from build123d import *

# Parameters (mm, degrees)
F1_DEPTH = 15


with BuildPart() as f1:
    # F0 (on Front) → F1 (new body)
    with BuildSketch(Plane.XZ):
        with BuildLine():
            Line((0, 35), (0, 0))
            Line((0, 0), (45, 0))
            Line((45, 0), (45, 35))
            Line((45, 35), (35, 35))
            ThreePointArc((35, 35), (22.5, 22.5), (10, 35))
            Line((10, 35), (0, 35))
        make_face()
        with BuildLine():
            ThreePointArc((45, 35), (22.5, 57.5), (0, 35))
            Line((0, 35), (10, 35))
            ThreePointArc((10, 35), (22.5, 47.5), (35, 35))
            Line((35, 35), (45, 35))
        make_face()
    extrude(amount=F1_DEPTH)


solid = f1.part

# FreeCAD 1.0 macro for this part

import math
import FreeCAD as App
import Part
import Sketcher

V = App.Vector

doc = App.newDocument("Part")
params = doc.addObject("Spreadsheet::Sheet", "Params")
for row, (alias, value) in enumerate([
    ("sketch1_diameter", "25 mm"),
    ("sketch1_radius", "22.5 mm"),
    ("sketch1_height", "35 mm"),
    ("pad1_length", "15 mm"),
], start=1):
    params.set(f"A{row}", alias)
    params.set(f"B{row}", "=" + value)
    params.setAlias(f"B{row}", alias)

body = doc.addObject("PartDesign::Body", "Body")

sketch1 = doc.addObject("Sketcher::SketchObject", "Sketch")
body.addObject(sketch1)
sketch1.AttachmentSupport = (doc.XZ_Plane, [""])
sketch1.MapMode = "FlatFace"
sketch1.addGeometry([
    Part.LineSegment(V(0, 35, 0), V(0, 0, 0)),
    Part.LineSegment(V(0, 0, 0), V(45, 0, 0)),
    Part.LineSegment(V(45, 0, 0), V(45, 35, 0)),
    Part.ArcOfCircle(Part.Circle(V(22, 35, 0), V(0, 0, 1), 22), math.radians(0), math.radians(180)),
    Part.Circle(V(22, 35, 0), V(0, 0, 1), 12),
], False)
sketch1.addConstraint([
    Sketcher.Constraint("Coincident", 0, 2, 1, 1),
    Sketcher.Constraint("Coincident", 1, 2, 2, 1),
    Sketcher.Constraint("Tangent", 2, 2, 3, 1),
    Sketcher.Constraint("Tangent", 3, 2, 0, 1),
    Sketcher.Constraint("Vertical", 0),
    Sketcher.Constraint("Horizontal", 1),
    Sketcher.Constraint("Vertical", 2),
    Sketcher.Constraint("Coincident", 0, 2, -1, 1),
    Sketcher.Constraint("Coincident", 4, 3, 3, 3),
    Sketcher.Constraint("Diameter", 4, 25.0),
    Sketcher.Constraint("Radius", 3, 22.5),
    Sketcher.Constraint("DistanceY", 0, 2, 0, 1, 35.0),
])
sketch1.setExpression("Constraints[9]", "Params.sketch1_diameter")
sketch1.setExpression("Constraints[10]", "Params.sketch1_radius")
sketch1.setExpression("Constraints[11]", "Params.sketch1_height")
pad1 = doc.addObject("PartDesign::Pad", "Pad")
body.addObject(pad1)
pad1.Profile = sketch1
pad1.setExpression("Length", "Params.pad1_length")

doc.recompute()
